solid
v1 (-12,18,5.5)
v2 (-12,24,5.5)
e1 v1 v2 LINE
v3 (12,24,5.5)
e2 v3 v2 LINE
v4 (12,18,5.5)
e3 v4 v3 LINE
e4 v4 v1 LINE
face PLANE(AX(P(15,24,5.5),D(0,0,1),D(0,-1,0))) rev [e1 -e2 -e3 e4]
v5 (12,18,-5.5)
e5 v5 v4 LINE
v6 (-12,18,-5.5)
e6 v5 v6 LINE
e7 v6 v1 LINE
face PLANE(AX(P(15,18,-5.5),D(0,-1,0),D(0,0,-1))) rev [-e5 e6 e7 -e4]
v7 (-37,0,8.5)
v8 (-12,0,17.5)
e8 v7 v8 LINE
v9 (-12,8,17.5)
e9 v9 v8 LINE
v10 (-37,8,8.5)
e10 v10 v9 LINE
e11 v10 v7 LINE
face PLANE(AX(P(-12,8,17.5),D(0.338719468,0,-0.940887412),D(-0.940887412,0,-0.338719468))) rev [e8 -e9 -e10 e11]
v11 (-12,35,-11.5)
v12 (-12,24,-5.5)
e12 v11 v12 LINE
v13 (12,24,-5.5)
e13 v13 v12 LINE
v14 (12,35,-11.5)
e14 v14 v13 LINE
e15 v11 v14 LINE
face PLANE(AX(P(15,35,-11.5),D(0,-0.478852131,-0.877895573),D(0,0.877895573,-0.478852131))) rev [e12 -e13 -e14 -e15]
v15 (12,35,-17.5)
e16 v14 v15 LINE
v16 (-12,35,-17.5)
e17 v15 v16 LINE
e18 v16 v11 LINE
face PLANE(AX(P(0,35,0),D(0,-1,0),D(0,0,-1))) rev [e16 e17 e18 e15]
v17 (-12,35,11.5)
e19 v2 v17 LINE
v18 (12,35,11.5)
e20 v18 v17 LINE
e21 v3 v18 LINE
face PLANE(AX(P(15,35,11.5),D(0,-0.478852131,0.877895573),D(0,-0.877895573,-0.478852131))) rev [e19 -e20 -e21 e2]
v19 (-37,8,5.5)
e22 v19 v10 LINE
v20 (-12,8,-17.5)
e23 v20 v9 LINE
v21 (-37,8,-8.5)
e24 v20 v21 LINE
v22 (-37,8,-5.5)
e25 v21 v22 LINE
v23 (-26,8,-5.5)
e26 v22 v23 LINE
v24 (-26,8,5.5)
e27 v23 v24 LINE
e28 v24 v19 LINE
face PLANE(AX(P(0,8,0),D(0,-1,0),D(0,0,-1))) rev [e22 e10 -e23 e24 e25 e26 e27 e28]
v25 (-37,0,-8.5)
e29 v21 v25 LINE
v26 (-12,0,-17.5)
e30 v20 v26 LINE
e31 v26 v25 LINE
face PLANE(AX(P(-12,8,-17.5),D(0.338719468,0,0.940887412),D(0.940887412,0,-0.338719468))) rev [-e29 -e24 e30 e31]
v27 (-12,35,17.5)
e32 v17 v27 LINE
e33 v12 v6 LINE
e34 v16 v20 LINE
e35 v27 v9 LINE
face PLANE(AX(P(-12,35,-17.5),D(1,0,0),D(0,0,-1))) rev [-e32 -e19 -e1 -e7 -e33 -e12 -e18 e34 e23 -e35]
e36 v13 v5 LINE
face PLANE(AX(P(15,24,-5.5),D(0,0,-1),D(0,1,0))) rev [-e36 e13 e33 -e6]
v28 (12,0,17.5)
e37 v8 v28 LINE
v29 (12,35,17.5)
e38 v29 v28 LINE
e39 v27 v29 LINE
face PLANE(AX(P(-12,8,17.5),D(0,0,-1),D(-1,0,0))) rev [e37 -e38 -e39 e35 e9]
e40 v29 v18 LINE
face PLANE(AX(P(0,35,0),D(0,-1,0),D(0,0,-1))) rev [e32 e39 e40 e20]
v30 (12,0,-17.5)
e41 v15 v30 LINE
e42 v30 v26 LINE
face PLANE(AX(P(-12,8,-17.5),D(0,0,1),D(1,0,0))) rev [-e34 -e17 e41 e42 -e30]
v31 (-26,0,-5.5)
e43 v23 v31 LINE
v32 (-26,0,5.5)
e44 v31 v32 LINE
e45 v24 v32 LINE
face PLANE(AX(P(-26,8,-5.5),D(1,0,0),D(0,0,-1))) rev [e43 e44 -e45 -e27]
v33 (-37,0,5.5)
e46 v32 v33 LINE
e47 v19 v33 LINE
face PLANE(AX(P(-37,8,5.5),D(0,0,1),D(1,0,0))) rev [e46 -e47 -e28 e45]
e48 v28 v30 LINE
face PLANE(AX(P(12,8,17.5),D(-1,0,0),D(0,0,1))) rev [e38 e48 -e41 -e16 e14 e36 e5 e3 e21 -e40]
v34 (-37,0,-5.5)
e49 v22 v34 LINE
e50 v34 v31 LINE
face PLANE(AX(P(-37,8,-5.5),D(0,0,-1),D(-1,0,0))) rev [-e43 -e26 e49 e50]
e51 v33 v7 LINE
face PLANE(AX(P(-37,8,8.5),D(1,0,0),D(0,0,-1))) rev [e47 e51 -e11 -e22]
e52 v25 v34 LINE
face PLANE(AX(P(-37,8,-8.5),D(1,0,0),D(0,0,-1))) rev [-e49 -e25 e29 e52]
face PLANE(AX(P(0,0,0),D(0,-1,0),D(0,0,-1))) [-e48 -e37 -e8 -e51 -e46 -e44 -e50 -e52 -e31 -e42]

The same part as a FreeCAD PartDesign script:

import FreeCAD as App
import Part
import Sketcher

V = App.Vector
Q = App.Units.Quantity

doc = App.newDocument("Part")
body = doc.addObject("PartDesign::Body", "Body")

# Sketch on XZ plane
sketch1 = body.newObject("Sketcher::SketchObject", "Sketch")
sketch1.AttachmentSupport = (doc.getObject("XZ_Plane"), [""])
sketch1.MapMode = "FlatFace"
sketch1.addGeometry(Part.LineSegment(V(-12, -17.5, 0), V(-37, -8.5, 0)), False)
sketch1.addGeometry(Part.LineSegment(V(-37, -8.5, 0), V(-37, -5.5, 0)), False)
sketch1.addGeometry(Part.LineSegment(V(-37, -5.5, 0), V(-26, -5.5, 0)), False)
sketch1.addGeometry(Part.LineSegment(V(-26, -5.5, 0), V(-26, 5.5, 0)), False)
sketch1.addGeometry(Part.LineSegment(V(-26, 5.5, 0), V(-37, 5.5, 0)), False)
sketch1.addGeometry(Part.LineSegment(V(-37, 5.5, 0), V(-37, 8.5, 0)), False)
sketch1.addGeometry(Part.LineSegment(V(-37, 8.5, 0), V(-12, 17.5, 0)), False)
sketch1.addGeometry(Part.LineSegment(V(-12, 17.5, 0), V(12, 17.5, 0)), False)
sketch1.addGeometry(Part.LineSegment(V(12, 17.5, 0), V(12, -17.5, 0)), False)
sketch1.addGeometry(Part.LineSegment(V(12, -17.5, 0), V(-12, -17.5, 0)), False)
sketch1.addConstraint(Sketcher.Constraint("Coincident", 0, 2, 1, 1))
sketch1.addConstraint(Sketcher.Constraint("Coincident", 1, 2, 2, 1))
sketch1.addConstraint(Sketcher.Constraint("Coincident", 2, 2, 3, 1))
sketch1.addConstraint(Sketcher.Constraint("Coincident", 3, 2, 4, 1))
sketch1.addConstraint(Sketcher.Constraint("Coincident", 4, 2, 5, 1))
sketch1.addConstraint(Sketcher.Constraint("Coincident", 5, 2, 6, 1))
sketch1.addConstraint(Sketcher.Constraint("Coincident", 6, 2, 7, 1))
sketch1.addConstraint(Sketcher.Constraint("Coincident", 7, 2, 8, 1))
sketch1.addConstraint(Sketcher.Constraint("Coincident", 8, 2, 9, 1))
sketch1.addConstraint(Sketcher.Constraint("Coincident", 9, 2, 0, 1))
sketch1.addConstraint(Sketcher.Constraint("Vertical", 1))
sketch1.addConstraint(Sketcher.Constraint("Horizontal", 2))
sketch1.addConstraint(Sketcher.Constraint("Vertical", 3))
sketch1.addConstraint(Sketcher.Constraint("Horizontal", 4))
sketch1.addConstraint(Sketcher.Constraint("Vertical", 5))
sketch1.addConstraint(Sketcher.Constraint("Horizontal", 7))
sketch1.addConstraint(Sketcher.Constraint("Vertical", 8))
sketch1.addConstraint(Sketcher.Constraint("Horizontal", 9))
sketch1.addConstraint(Sketcher.Constraint("Symmetric", 6, 2, 8, 2, -1, 1))
sketch1.addConstraint(Sketcher.Constraint("Symmetric", 1, 2, 4, 2, -1))
sketch1.addConstraint(Sketcher.Constraint("Vertical", 6, 2, 9, 2))
sketch1.addConstraint(Sketcher.Constraint("Equal", 4, 3))
sketch1.addConstraint(Sketcher.Constraint("Equal", 1, 5))
sketch1.addConstraint(Sketcher.Constraint("DistanceX", 2, 1, 2, 2, Q("11 mm")))
sketch1.addConstraint(Sketcher.Constraint("DistanceX", 7, 1, 7, 2, Q("24 mm")))
sketch1.addConstraint(Sketcher.Constraint("DistanceY", 1, 1, 1, 2, Q("3 mm")))
sketch1.addConstraint(Sketcher.Constraint("DistanceY", 8, 2, 8, 1, Q("35 mm")))
sketch1.addConstraint(Sketcher.Constraint("DistanceX", 0, 2, -1, 1, Q("37 mm")))
pad1 = body.newObject("PartDesign::Pad", "Pad")
pad1.Profile = sketch1
pad1.Length = 8
pad1.Reversed = True

# Sketch on XZ plane
sketch2 = body.newObject("Sketcher::SketchObject", "Sketch001")
sketch2.AttachmentSupport = (doc.getObject("XZ_Plane"), [""])
sketch2.MapMode = "FlatFace"
sketch2.AttachmentOffset = App.Placement(V(0, 0, -8), App.Rotation())
sketch2.addGeometry(Part.LineSegment(V(-12, -18, 0), V(-12, 18, 0)), False)
sketch2.addGeometry(Part.LineSegment(V(-12, 18, 0), V(12, 18, 0)), False)
sketch2.addGeometry(Part.LineSegment(V(12, 18, 0), V(12, -18, 0)), False)
sketch2.addGeometry(Part.LineSegment(V(12, -18, 0), V(-12, -18, 0)), False)
sketch2.addConstraint(Sketcher.Constraint("Coincident", 0, 2, 1, 1))
sketch2.addConstraint(Sketcher.Constraint("Coincident", 1, 2, 2, 1))
sketch2.addConstraint(Sketcher.Constraint("Coincident", 2, 2, 3, 1))
sketch2.addConstraint(Sketcher.Constraint("Coincident", 3, 2, 0, 1))
sketch2.addConstraint(Sketcher.Constraint("Vertical", 0))
sketch2.addConstraint(Sketcher.Constraint("Horizontal", 1))
sketch2.addConstraint(Sketcher.Constraint("Vertical", 2))
sketch2.addConstraint(Sketcher.Constraint("Horizontal", 3))
sketch2.addConstraint(Sketcher.Constraint("Symmetric", 0, 2, 2, 2, -1, 1))
sketch2.addConstraint(Sketcher.Constraint("DistanceX", 1, 1, 1, 2, Q("24 mm")))
sketch2.addConstraint(Sketcher.Constraint("DistanceY", 0, 1, 0, 2, Q("35 mm")))
pad2 = body.newObject("PartDesign::Pad", "Pad001")
pad2.Profile = sketch2
pad2.Length = 27
pad2.Reversed = True

# Sketch on YZ plane
sketch3 = body.newObject("Sketcher::SketchObject", "Sketch002")
sketch3.AttachmentSupport = (doc.getObject("YZ_Plane"), [""])
sketch3.MapMode = "FlatFace"
sketch3.AttachmentOffset = App.Placement(V(0, 0, -12), App.Rotation())
sketch3.addGeometry(Part.LineSegment(V(35, -12, 0), V(24, -6, 0)), False)
sketch3.addGeometry(Part.LineSegment(V(24, -6, 0), V(18, -6, 0)), False)
sketch3.addGeometry(Part.LineSegment(V(18, -6, 0), V(18, 6, 0)), False)
sketch3.addGeometry(Part.LineSegment(V(18, 6, 0), V(24, 6, 0)), False)
sketch3.addGeometry(Part.LineSegment(V(24, 6, 0), V(35, 12, 0)), False)
sketch3.addGeometry(Part.LineSegment(V(35, 12, 0), V(35, -12, 0)), False)
sketch3.addConstraint(Sketcher.Constraint("Coincident", 0, 2, 1, 1))
sketch3.addConstraint(Sketcher.Constraint("Coincident", 1, 2, 2, 1))
sketch3.addConstraint(Sketcher.Constraint("Coincident", 2, 2, 3, 1))
sketch3.addConstraint(Sketcher.Constraint("Coincident", 3, 2, 4, 1))
sketch3.addConstraint(Sketcher.Constraint("Coincident", 4, 2, 5, 1))
sketch3.addConstraint(Sketcher.Constraint("Coincident", 5, 2, 0, 1))
sketch3.addConstraint(Sketcher.Constraint("Horizontal", 1))
sketch3.addConstraint(Sketcher.Constraint("Vertical", 2))
sketch3.addConstraint(Sketcher.Constraint("Horizontal", 3))
sketch3.addConstraint(Sketcher.Constraint("Vertical", 5))
sketch3.addConstraint(Sketcher.Constraint("Symmetric", 0, 2, 3, 2, -1))
sketch3.addConstraint(Sketcher.Constraint("Equal", 0, 4))
sketch3.addConstraint(Sketcher.Constraint("DistanceX", 1, 2, 1, 1, Q("6 mm")))
sketch3.addConstraint(Sketcher.Constraint("DistanceY", 2, 1, 2, 2, Q("11 mm")))
sketch3.addConstraint(Sketcher.Constraint("DistanceY", 5, 2, 5, 1, Q("23 mm")))
sketch3.addConstraint(Sketcher.Constraint("DistanceX", -1, 1, 0, 2, Q("24 mm")))
sketch3.addConstraint(Sketcher.Constraint("DistanceX", -1, 1, 4, 2, Q("35 mm")))
pocket1 = body.newObject("PartDesign::Pocket", "Pocket")
pocket1.Profile = sketch3
pocket1.Length = 27
pocket1.Reversed = True

doc.recompute()
